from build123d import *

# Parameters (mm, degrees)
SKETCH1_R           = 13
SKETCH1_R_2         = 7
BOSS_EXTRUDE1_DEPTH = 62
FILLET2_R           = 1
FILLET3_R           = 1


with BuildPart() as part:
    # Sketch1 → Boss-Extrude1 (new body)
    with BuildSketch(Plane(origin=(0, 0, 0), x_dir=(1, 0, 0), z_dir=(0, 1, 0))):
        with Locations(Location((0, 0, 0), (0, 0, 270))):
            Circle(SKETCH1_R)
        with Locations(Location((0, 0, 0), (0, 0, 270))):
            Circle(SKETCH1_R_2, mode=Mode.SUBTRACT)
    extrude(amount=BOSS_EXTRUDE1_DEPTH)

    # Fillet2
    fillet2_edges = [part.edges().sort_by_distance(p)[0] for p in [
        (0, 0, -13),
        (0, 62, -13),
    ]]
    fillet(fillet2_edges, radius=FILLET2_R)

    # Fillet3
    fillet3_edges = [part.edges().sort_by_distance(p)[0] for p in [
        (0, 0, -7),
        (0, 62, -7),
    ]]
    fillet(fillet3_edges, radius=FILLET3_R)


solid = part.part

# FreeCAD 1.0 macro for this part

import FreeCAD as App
import Part
import Sketcher
Q = App.Units.Quantity


def edges_at(feature, points):
    """Names of the edges that pass closest to the given points."""
    edges = feature.Shape.Edges
    near = lambda p: min(range(len(edges)), key=lambda i: edges[i].distToShape(Part.Vertex(*p))[0])
    return sorted({f"Edge{near(p) + 1}" for p in points})

doc = App.newDocument("Part")
params = doc.addObject("Spreadsheet::Sheet", "Params")
for row, (alias, value) in enumerate([
    ("sketch1_diameter", "26 mm"),
    ("sketch1_diameter2", "14 mm"),
    ("pad1_length", "62 mm"),
    ("fillet_radius", "1 mm"),
    ("fillet2_radius", "1 mm"),
], start=1):
    params.set(f"A{row}", alias)
    params.set(f"B{row}", "=" + value)
    params.setAlias(f"B{row}", alias)

body = doc.addObject("PartDesign::Body", "Body")

# Sketch on XZ plane
sketch1 = doc.addObject("Sketcher::SketchObject", "Sketch")
body.addObject(sketch1)
sketch1.AttachmentSupport = (doc.XZ_Plane, [""])
sketch1.MapMode = "FlatFace"
sketch1.addGeometry([
    Part.Circle(App.Vector(0, 0, 0), App.Vector(0, 0, 1), 13),
    Part.Circle(App.Vector(0, 0, 0), App.Vector(0, 0, 1), 7),
], False)
sketch1.addConstraint([
    Sketcher.Constraint("Coincident", 0, 3, -1, 1),
    Sketcher.Constraint("Coincident", 1, 3, -1, 1),
    Sketcher.Constraint("Diameter", 0, Q("26 mm")),
    Sketcher.Constraint("Diameter", 1, Q("14 mm")),
])
sketch1.setExpression("Constraints[2]", "Params.sketch1_diameter")
sketch1.setExpression("Constraints[3]", "Params.sketch1_diameter2")
pad1 = doc.addObject("PartDesign::Pad", "Pad")
body.addObject(pad1)
pad1.Profile = sketch1
pad1.setExpression("Length", "Params.pad1_length")
pad1.Reversed = True
doc.recompute()

fillet = doc.addObject("PartDesign::Fillet", "Fillet")
body.addObject(fillet)
fillet.Base = (pad1, edges_at(pad1, [(0, 0, -13), (0, 62, -13)]))
fillet.setExpression("Radius", "Params.fillet_radius")
doc.recompute()

fillet2 = doc.addObject("PartDesign::Fillet", "Fillet001")
body.addObject(fillet2)
fillet2.Base = (fillet, edges_at(fillet, [(0, 0, -7), (0, 62, -7)]))
fillet2.setExpression("Radius", "Params.fillet2_radius")

doc.recompute()
